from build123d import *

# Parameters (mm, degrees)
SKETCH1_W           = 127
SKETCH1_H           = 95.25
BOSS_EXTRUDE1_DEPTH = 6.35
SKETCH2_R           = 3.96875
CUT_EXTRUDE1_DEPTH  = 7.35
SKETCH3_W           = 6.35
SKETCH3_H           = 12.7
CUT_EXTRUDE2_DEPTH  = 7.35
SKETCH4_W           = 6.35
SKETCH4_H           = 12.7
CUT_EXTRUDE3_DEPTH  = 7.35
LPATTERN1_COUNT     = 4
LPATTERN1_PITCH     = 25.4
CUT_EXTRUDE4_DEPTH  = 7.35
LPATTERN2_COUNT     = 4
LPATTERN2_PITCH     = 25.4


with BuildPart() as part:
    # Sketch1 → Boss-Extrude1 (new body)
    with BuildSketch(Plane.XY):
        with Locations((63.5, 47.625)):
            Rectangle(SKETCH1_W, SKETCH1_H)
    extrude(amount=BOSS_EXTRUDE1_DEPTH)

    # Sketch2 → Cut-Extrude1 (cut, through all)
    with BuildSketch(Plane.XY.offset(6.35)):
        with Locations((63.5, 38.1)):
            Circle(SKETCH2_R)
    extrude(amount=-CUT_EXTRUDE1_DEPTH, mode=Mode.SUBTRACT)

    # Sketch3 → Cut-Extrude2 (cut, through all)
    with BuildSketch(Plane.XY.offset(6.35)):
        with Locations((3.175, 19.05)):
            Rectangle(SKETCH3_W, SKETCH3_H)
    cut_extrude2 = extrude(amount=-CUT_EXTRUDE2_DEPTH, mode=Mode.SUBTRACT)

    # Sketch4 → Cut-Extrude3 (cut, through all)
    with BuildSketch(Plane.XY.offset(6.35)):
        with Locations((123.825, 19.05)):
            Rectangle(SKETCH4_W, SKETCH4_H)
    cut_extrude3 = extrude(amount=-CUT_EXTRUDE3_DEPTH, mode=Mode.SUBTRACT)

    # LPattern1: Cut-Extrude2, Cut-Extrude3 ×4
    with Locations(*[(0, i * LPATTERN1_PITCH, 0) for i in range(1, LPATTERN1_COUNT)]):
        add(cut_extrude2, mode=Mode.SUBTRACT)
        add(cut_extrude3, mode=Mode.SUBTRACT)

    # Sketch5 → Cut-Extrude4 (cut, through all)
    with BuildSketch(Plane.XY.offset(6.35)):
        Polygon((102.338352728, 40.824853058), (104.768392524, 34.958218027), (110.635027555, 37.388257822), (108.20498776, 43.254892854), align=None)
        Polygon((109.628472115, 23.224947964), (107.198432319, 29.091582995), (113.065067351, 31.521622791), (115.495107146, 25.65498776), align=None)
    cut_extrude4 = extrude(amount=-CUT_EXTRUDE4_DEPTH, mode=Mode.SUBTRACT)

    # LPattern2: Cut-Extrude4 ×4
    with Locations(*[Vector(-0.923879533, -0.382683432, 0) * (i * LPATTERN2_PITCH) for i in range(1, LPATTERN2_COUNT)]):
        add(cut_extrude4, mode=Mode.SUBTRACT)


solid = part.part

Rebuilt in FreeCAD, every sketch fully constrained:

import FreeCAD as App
import Part
import Sketcher
Q = App.Units.Quantity


def add_polygon(sketch, points):
    """Adds a closed chain of lines whose ends are joined by coincident constraints."""
    first, n = sketch.GeometryCount, len(points)
    for a, b in zip(points, points[1:] + points[:1]):
        sketch.addGeometry(Part.LineSegment(App.Vector(*a, 0), App.Vector(*b, 0)), False)
    for i in range(n):
        sketch.addConstraint(Sketcher.Constraint("Coincident", first + i, 2, first + (i + 1) % n, 1))

doc = App.newDocument("Part")
body = doc.addObject("PartDesign::Body", "Body")

# Sketch on XY plane
sketch1 = doc.addObject("Sketcher::SketchObject", "Sketch")
body.addObject(sketch1)
sketch1.AttachmentSupport = (doc.XY_Plane, [""])
sketch1.MapMode = "FlatFace"
add_polygon(sketch1, [(0, 95), (0, 0), (127, 0), (127, 95)])  # lines 0-3
sketch1.addConstraint([
    Sketcher.Constraint("Vertical", 0),
    Sketcher.Constraint("Horizontal", 1),
    Sketcher.Constraint("Vertical", 2),
    Sketcher.Constraint("Horizontal", 3),
    Sketcher.Constraint("Coincident", 0, 2, -1, 1),
    Sketcher.Constraint("DistanceX", 1, 1, 1, 2, Q("5 in")),
    Sketcher.Constraint("DistanceY", 0, 2, 0, 1, Q("3.75 in")),
])
pad1 = doc.addObject("PartDesign::Pad", "Pad")
body.addObject(pad1)
pad1.Profile = sketch1
pad1.Length = Q("0.25 in")

# Sketch on XY plane
sketch2 = doc.addObject("Sketcher::SketchObject", "Sketch001")
body.addObject(sketch2)
sketch2.AttachmentSupport = (doc.XY_Plane, [""])
sketch2.MapMode = "FlatFace"
sketch2.AttachmentOffset = App.Placement(App.Vector(0, 0, 0.25 * 25.4), App.Rotation())
sketch2.addGeometry(Part.Circle(App.Vector(63.5, 38.1, 0), App.Vector(0, 0, 1), 4), False)
sketch2.addConstraint([
    Sketcher.Constraint("Diameter", 0, Q("0.3125 in")),
    Sketcher.Constraint("DistanceX", -1, 1, 0, 3, Q("2.5 in")),
    Sketcher.Constraint("DistanceY", -1, 1, 0, 3, Q("1.5 in")),
])
pocket1 = doc.addObject("PartDesign::Pocket", "Pocket")
body.addObject(pocket1)
pocket1.Profile = sketch2
pocket1.Type = "ThroughAll"

# Sketch on XY plane
sketch3 = doc.addObject("Sketcher::SketchObject", "Sketch002")
body.addObject(sketch3)
sketch3.AttachmentSupport = (doc.XY_Plane, [""])
sketch3.MapMode = "FlatFace"
sketch3.AttachmentOffset = App.Placement(App.Vector(0, 0, 0.25 * 25.4), App.Rotation())
add_polygon(sketch3, [(0, 25), (0, 13), (6, 13), (6, 25)])  # lines 0-3
sketch3.addConstraint([
    Sketcher.Constraint("Vertical", 0),
    Sketcher.Constraint("Horizontal", 1),
    Sketcher.Constraint("Vertical", 2),
    Sketcher.Constraint("Horizontal", 3),
    Sketcher.Constraint("PointOnObject", 0, 2, -2),
    Sketcher.Constraint("DistanceY", 0, 2, 0, 1, Q("0.5 in")),
    Sketcher.Constraint("DistanceY", -1, 1, 2, 2, Q("1 in")),
    Sketcher.Constraint("DistanceX", 1, 1, 1, 2, Q("0.25 in")),
])
pocket2 = doc.addObject("PartDesign::Pocket", "Pocket001")
body.addObject(pocket2)
pocket2.Profile = sketch3
pocket2.Type = "ThroughAll"

# Sketch on XY plane
sketch4 = doc.addObject("Sketcher::SketchObject", "Sketch003")
body.addObject(sketch4)
sketch4.AttachmentSupport = (doc.XY_Plane, [""])
sketch4.MapMode = "FlatFace"
sketch4.AttachmentOffset = App.Placement(App.Vector(0, 0, 0.25 * 25.4), App.Rotation())
add_polygon(sketch4, [(121, 25), (121, 13), (127, 13), (127, 25)])  # lines 0-3
sketch4.addConstraint([
    Sketcher.Constraint("Vertical", 0),
    Sketcher.Constraint("Horizontal", 1),
    Sketcher.Constraint("Vertical", 2),
    Sketcher.Constraint("Horizontal", 3),
    Sketcher.Constraint("DistanceY", 0, 2, 0, 1, Q("0.5 in")),
    Sketcher.Constraint("DistanceX", -1, 1, 1, 2, Q("5 in")),
    Sketcher.Constraint("DistanceY", -1, 1, 2, 2, Q("1 in")),
    Sketcher.Constraint("DistanceX", 1, 1, 1, 2, Q("0.25 in")),
])
pocket3 = doc.addObject("PartDesign::Pocket", "Pocket002")
body.addObject(pocket3)
pocket3.Profile = sketch4
pocket3.Type = "ThroughAll"
doc.recompute()

linearpattern = doc.addObject("PartDesign::LinearPattern", "LinearPattern")
body.addObject(linearpattern)
linearpattern.Originals = [pocket2, pocket3]
linearpattern.Direction = (doc.Y_Axis, [""])
linearpattern.Mode = "offset"
linearpattern.Offset = Q("1 in")
linearpattern.Occurrences = 4
body.Tip = linearpattern

# Sketch on XY plane
sketch5 = doc.addObject("Sketcher::SketchObject", "Sketch004")
body.addObject(sketch5)
sketch5.AttachmentSupport = (doc.XY_Plane, [""])
sketch5.MapMode = "FlatFace"
sketch5.AttachmentOffset = App.Placement(App.Vector(0, 0, 0.25 * 25.4), App.Rotation())
add_polygon(sketch5, [(102, 41), (105, 35), (111, 37), (108, 43)])  # lines 0-3
add_polygon(sketch5, [(107, 29), (110, 23), (115, 26), (113, 32)])  # lines 4-7
sketch5.addConstraint([
    Sketcher.Constraint("Perpendicular", 0, 1),
    Sketcher.Constraint("Perpendicular", 1, 2),
    Sketcher.Constraint("Perpendicular", 2, 3),
    Sketcher.Constraint("Perpendicular", 3, 4),
    Sketcher.Constraint("Perpendicular", 4, 5),
    Sketcher.Constraint("Perpendicular", 5, 6),
    Sketcher.Constraint("Perpendicular", 6, 7),
    Sketcher.Constraint("Equal", 0, 1),
    Sketcher.Constraint("Equal", 3, 4),
    Sketcher.Constraint("Equal", 4, 5),
    Sketcher.Constraint("Angle", 0, Q("-67.5 deg")),
    Sketcher.Constraint("Distance", 0, Q("0.25 in")),
    Sketcher.Constraint("DistanceY", -1, 1, 0, 2, Q("34.958218 mm")),
    Sketcher.Constraint("DistanceX", 0, 2, 4, 2, Q("4.86008 mm")),
    Sketcher.Constraint("DistanceY", 4, 2, 0, 2, Q("11.73327 mm")),
    Sketcher.Constraint("DistanceX", -1, 1, 0, 2, Q("104.768393 mm")),
])
pocket4 = doc.addObject("PartDesign::Pocket", "Pocket003")
body.addObject(pocket4)
pocket4.Profile = sketch5
pocket4.Type = "ThroughAll"
doc.recompute()

datumline = doc.addObject("PartDesign::Line", "DatumLine")
body.addObject(datumline)
datumline.Placement = App.Placement(App.Vector(0, 0, 0), App.Rotation(App.Vector(0, 0, 1), App.Vector(-0.923879533, -0.382683432, 0)))
linearpattern2 = doc.addObject("PartDesign::LinearPattern", "LinearPattern001")
body.addObject(linearpattern2)
linearpattern2.Originals = [pocket4]
linearpattern2.Direction = (datumline, [""])
linearpattern2.Mode = "offset"
linearpattern2.Offset = Q("1 in")
linearpattern2.Occurrences = 4
body.Tip = linearpattern2

doc.recompute()
